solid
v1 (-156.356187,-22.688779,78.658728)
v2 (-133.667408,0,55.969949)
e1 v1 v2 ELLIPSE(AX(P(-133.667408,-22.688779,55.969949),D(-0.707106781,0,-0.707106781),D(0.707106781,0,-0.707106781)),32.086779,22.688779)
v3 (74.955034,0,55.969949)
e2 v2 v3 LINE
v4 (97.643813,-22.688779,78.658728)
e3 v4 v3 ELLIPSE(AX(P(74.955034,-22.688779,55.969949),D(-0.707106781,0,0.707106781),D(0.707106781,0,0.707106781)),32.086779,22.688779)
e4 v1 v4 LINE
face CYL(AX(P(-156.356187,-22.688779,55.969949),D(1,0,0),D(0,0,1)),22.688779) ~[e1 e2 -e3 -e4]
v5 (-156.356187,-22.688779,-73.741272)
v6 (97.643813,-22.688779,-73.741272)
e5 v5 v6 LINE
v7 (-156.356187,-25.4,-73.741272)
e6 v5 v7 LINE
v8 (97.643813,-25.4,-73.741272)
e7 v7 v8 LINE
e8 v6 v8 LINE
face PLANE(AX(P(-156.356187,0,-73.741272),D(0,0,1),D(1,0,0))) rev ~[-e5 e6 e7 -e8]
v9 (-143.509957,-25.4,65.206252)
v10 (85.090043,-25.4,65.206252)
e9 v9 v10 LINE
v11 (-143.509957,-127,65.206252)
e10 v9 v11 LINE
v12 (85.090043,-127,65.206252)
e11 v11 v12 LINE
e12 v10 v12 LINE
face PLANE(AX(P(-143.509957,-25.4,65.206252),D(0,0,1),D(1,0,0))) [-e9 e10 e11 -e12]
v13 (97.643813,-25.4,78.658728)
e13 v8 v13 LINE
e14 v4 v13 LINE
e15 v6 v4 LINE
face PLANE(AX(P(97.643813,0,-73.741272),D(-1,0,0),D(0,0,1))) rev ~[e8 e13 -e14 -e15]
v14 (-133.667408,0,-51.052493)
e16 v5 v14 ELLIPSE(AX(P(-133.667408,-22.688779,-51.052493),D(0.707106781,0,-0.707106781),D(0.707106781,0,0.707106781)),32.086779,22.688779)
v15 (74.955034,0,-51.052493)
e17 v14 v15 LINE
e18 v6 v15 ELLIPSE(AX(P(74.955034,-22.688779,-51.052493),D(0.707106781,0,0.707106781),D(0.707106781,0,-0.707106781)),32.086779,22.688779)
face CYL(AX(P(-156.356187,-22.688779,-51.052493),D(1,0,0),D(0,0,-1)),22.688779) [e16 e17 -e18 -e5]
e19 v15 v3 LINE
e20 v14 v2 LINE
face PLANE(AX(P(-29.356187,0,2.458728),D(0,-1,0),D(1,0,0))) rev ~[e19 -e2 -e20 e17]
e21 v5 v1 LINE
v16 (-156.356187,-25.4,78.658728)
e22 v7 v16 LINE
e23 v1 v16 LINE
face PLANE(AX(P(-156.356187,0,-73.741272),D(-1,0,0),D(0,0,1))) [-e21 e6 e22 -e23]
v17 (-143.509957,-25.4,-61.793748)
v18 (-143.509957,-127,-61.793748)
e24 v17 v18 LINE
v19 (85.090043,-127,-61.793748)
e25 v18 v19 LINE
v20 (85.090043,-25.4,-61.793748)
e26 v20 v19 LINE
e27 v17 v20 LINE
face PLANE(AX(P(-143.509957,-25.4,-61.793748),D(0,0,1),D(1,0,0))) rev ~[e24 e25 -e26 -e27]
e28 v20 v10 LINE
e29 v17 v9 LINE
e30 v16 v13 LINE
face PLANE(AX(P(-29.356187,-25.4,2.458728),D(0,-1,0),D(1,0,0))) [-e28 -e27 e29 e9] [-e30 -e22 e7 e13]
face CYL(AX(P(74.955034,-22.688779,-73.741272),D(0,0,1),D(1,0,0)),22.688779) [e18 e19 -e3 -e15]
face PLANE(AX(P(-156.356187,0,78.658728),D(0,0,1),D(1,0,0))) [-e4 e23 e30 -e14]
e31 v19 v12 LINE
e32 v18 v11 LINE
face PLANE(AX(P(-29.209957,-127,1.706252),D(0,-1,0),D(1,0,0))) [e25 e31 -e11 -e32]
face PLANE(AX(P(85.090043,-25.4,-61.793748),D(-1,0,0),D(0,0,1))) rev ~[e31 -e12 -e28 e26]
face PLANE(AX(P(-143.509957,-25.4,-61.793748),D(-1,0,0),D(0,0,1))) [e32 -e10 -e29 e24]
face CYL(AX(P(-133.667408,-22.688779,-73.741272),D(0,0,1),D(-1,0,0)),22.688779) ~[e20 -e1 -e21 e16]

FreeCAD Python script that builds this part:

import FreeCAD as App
import Part
import Sketcher
from FreeCAD import Vector
Q = App.Units.Quantity


def edges_at(feature, points):
    """Names of the edges that pass closest to the given points."""
    edges = feature.Shape.Edges
    near = lambda p: min(range(len(edges)), key=lambda i: edges[i].distToShape(Part.Vertex(*p))[0])
    return sorted({f"Edge{near(p) + 1}" for p in points})

doc = App.newDocument("Part")
body = doc.addObject("PartDesign::Body", "Body")

# Sketch on XZ plane
sketch1 = doc.addObject("Sketcher::SketchObject", "Sketch")
body.addObject(sketch1)
sketch1.AttachmentSupport = (doc.XZ_Plane, [""])
sketch1.MapMode = "FlatFace"
sketch1.addGeometry([
    Part.LineSegment(Vector(-156.356187, 78.658728, 0), Vector(-156.356187, -73.741272, 0)),
    Part.LineSegment(Vector(-156.356187, -73.741272, 0), Vector(97.643813, -73.741272, 0)),
    Part.LineSegment(Vector(97.643813, -73.741272, 0), Vector(97.643813, 78.658728, 0)),
    Part.LineSegment(Vector(97.643813, 78.658728, 0), Vector(-156.356187, 78.658728, 0)),
], False)
sketch1.addConstraint([
    Sketcher.Constraint("Coincident", 0, 2, 1, 1),
    Sketcher.Constraint("Coincident", 1, 2, 2, 1),
    Sketcher.Constraint("Coincident", 2, 2, 3, 1),
    Sketcher.Constraint("Coincident", 3, 2, 0, 1),
    Sketcher.Constraint("Vertical", 0),
    Sketcher.Constraint("Horizontal", 1),
    Sketcher.Constraint("Vertical", 2),
    Sketcher.Constraint("Horizontal", 3),
    Sketcher.Constraint("DistanceX", 1, 1, 1, 2, Q("10 in")),
    Sketcher.Constraint("DistanceY", 0, 2, 0, 1, Q("6 in")),
    Sketcher.Constraint("DistanceY", 0, 2, -1, 1, 73.741272),
    Sketcher.Constraint("DistanceX", 0, 2, -1, 1, 156.356187),
])
pad1 = doc.addObject("PartDesign::Pad", "Pad")
body.addObject(pad1)
pad1.Profile = sketch1
pad1.Length = Q("1 in")
doc.recompute()

fillet = doc.addObject("PartDesign::Fillet", "Fillet")
body.addObject(fillet)
fillet.Base = (pad1, edges_at(pad1, [
    (-29.356, 0, 78.659),
    (-156.356, 0, 2.459),
    (-29.356, 0, -73.741),
    (97.644, 0, 2.459),
]))
fillet.Radius = 22.688779

# Sketch on XZ plane
sketch2 = doc.addObject("Sketcher::SketchObject", "Sketch001")
body.addObject(sketch2)
sketch2.AttachmentSupport = (doc.XZ_Plane, [""])
sketch2.MapMode = "FlatFace"
sketch2.AttachmentOffset = App.Placement(Vector(0, 0, 1 * 25.4), App.Rotation())
sketch2.addGeometry([
    Part.LineSegment(Vector(-143.509957, 65.206252, 0), Vector(-143.509957, -61.793748, 0)),
    Part.LineSegment(Vector(-143.509957, -61.793748, 0), Vector(85.090043, -61.793748, 0)),
    Part.LineSegment(Vector(85.090043, -61.793748, 0), Vector(85.090043, 65.206252, 0)),
    Part.LineSegment(Vector(85.090043, 65.206252, 0), Vector(-143.509957, 65.206252, 0)),
], False)
sketch2.addConstraint([
    Sketcher.Constraint("Coincident", 0, 2, 1, 1),
    Sketcher.Constraint("Coincident", 1, 2, 2, 1),
    Sketcher.Constraint("Coincident", 2, 2, 3, 1),
    Sketcher.Constraint("Coincident", 3, 2, 0, 1),
    Sketcher.Constraint("Vertical", 0),
    Sketcher.Constraint("Horizontal", 1),
    Sketcher.Constraint("Vertical", 2),
    Sketcher.Constraint("Horizontal", 3),
    Sketcher.Constraint("DistanceX", 1, 1, 1, 2, Q("9 in")),
    Sketcher.Constraint("DistanceY", 0, 2, 0, 1, Q("5 in")),
    Sketcher.Constraint("DistanceX", 0, 2, -1, 1, 143.509957),
    Sketcher.Constraint("DistanceY", 0, 2, -1, 1, 61.793748),
])
pad2 = doc.addObject("PartDesign::Pad", "Pad001")
body.addObject(pad2)
pad2.Profile = sketch2
pad2.Length = Q("4 in")

doc.recompute()
